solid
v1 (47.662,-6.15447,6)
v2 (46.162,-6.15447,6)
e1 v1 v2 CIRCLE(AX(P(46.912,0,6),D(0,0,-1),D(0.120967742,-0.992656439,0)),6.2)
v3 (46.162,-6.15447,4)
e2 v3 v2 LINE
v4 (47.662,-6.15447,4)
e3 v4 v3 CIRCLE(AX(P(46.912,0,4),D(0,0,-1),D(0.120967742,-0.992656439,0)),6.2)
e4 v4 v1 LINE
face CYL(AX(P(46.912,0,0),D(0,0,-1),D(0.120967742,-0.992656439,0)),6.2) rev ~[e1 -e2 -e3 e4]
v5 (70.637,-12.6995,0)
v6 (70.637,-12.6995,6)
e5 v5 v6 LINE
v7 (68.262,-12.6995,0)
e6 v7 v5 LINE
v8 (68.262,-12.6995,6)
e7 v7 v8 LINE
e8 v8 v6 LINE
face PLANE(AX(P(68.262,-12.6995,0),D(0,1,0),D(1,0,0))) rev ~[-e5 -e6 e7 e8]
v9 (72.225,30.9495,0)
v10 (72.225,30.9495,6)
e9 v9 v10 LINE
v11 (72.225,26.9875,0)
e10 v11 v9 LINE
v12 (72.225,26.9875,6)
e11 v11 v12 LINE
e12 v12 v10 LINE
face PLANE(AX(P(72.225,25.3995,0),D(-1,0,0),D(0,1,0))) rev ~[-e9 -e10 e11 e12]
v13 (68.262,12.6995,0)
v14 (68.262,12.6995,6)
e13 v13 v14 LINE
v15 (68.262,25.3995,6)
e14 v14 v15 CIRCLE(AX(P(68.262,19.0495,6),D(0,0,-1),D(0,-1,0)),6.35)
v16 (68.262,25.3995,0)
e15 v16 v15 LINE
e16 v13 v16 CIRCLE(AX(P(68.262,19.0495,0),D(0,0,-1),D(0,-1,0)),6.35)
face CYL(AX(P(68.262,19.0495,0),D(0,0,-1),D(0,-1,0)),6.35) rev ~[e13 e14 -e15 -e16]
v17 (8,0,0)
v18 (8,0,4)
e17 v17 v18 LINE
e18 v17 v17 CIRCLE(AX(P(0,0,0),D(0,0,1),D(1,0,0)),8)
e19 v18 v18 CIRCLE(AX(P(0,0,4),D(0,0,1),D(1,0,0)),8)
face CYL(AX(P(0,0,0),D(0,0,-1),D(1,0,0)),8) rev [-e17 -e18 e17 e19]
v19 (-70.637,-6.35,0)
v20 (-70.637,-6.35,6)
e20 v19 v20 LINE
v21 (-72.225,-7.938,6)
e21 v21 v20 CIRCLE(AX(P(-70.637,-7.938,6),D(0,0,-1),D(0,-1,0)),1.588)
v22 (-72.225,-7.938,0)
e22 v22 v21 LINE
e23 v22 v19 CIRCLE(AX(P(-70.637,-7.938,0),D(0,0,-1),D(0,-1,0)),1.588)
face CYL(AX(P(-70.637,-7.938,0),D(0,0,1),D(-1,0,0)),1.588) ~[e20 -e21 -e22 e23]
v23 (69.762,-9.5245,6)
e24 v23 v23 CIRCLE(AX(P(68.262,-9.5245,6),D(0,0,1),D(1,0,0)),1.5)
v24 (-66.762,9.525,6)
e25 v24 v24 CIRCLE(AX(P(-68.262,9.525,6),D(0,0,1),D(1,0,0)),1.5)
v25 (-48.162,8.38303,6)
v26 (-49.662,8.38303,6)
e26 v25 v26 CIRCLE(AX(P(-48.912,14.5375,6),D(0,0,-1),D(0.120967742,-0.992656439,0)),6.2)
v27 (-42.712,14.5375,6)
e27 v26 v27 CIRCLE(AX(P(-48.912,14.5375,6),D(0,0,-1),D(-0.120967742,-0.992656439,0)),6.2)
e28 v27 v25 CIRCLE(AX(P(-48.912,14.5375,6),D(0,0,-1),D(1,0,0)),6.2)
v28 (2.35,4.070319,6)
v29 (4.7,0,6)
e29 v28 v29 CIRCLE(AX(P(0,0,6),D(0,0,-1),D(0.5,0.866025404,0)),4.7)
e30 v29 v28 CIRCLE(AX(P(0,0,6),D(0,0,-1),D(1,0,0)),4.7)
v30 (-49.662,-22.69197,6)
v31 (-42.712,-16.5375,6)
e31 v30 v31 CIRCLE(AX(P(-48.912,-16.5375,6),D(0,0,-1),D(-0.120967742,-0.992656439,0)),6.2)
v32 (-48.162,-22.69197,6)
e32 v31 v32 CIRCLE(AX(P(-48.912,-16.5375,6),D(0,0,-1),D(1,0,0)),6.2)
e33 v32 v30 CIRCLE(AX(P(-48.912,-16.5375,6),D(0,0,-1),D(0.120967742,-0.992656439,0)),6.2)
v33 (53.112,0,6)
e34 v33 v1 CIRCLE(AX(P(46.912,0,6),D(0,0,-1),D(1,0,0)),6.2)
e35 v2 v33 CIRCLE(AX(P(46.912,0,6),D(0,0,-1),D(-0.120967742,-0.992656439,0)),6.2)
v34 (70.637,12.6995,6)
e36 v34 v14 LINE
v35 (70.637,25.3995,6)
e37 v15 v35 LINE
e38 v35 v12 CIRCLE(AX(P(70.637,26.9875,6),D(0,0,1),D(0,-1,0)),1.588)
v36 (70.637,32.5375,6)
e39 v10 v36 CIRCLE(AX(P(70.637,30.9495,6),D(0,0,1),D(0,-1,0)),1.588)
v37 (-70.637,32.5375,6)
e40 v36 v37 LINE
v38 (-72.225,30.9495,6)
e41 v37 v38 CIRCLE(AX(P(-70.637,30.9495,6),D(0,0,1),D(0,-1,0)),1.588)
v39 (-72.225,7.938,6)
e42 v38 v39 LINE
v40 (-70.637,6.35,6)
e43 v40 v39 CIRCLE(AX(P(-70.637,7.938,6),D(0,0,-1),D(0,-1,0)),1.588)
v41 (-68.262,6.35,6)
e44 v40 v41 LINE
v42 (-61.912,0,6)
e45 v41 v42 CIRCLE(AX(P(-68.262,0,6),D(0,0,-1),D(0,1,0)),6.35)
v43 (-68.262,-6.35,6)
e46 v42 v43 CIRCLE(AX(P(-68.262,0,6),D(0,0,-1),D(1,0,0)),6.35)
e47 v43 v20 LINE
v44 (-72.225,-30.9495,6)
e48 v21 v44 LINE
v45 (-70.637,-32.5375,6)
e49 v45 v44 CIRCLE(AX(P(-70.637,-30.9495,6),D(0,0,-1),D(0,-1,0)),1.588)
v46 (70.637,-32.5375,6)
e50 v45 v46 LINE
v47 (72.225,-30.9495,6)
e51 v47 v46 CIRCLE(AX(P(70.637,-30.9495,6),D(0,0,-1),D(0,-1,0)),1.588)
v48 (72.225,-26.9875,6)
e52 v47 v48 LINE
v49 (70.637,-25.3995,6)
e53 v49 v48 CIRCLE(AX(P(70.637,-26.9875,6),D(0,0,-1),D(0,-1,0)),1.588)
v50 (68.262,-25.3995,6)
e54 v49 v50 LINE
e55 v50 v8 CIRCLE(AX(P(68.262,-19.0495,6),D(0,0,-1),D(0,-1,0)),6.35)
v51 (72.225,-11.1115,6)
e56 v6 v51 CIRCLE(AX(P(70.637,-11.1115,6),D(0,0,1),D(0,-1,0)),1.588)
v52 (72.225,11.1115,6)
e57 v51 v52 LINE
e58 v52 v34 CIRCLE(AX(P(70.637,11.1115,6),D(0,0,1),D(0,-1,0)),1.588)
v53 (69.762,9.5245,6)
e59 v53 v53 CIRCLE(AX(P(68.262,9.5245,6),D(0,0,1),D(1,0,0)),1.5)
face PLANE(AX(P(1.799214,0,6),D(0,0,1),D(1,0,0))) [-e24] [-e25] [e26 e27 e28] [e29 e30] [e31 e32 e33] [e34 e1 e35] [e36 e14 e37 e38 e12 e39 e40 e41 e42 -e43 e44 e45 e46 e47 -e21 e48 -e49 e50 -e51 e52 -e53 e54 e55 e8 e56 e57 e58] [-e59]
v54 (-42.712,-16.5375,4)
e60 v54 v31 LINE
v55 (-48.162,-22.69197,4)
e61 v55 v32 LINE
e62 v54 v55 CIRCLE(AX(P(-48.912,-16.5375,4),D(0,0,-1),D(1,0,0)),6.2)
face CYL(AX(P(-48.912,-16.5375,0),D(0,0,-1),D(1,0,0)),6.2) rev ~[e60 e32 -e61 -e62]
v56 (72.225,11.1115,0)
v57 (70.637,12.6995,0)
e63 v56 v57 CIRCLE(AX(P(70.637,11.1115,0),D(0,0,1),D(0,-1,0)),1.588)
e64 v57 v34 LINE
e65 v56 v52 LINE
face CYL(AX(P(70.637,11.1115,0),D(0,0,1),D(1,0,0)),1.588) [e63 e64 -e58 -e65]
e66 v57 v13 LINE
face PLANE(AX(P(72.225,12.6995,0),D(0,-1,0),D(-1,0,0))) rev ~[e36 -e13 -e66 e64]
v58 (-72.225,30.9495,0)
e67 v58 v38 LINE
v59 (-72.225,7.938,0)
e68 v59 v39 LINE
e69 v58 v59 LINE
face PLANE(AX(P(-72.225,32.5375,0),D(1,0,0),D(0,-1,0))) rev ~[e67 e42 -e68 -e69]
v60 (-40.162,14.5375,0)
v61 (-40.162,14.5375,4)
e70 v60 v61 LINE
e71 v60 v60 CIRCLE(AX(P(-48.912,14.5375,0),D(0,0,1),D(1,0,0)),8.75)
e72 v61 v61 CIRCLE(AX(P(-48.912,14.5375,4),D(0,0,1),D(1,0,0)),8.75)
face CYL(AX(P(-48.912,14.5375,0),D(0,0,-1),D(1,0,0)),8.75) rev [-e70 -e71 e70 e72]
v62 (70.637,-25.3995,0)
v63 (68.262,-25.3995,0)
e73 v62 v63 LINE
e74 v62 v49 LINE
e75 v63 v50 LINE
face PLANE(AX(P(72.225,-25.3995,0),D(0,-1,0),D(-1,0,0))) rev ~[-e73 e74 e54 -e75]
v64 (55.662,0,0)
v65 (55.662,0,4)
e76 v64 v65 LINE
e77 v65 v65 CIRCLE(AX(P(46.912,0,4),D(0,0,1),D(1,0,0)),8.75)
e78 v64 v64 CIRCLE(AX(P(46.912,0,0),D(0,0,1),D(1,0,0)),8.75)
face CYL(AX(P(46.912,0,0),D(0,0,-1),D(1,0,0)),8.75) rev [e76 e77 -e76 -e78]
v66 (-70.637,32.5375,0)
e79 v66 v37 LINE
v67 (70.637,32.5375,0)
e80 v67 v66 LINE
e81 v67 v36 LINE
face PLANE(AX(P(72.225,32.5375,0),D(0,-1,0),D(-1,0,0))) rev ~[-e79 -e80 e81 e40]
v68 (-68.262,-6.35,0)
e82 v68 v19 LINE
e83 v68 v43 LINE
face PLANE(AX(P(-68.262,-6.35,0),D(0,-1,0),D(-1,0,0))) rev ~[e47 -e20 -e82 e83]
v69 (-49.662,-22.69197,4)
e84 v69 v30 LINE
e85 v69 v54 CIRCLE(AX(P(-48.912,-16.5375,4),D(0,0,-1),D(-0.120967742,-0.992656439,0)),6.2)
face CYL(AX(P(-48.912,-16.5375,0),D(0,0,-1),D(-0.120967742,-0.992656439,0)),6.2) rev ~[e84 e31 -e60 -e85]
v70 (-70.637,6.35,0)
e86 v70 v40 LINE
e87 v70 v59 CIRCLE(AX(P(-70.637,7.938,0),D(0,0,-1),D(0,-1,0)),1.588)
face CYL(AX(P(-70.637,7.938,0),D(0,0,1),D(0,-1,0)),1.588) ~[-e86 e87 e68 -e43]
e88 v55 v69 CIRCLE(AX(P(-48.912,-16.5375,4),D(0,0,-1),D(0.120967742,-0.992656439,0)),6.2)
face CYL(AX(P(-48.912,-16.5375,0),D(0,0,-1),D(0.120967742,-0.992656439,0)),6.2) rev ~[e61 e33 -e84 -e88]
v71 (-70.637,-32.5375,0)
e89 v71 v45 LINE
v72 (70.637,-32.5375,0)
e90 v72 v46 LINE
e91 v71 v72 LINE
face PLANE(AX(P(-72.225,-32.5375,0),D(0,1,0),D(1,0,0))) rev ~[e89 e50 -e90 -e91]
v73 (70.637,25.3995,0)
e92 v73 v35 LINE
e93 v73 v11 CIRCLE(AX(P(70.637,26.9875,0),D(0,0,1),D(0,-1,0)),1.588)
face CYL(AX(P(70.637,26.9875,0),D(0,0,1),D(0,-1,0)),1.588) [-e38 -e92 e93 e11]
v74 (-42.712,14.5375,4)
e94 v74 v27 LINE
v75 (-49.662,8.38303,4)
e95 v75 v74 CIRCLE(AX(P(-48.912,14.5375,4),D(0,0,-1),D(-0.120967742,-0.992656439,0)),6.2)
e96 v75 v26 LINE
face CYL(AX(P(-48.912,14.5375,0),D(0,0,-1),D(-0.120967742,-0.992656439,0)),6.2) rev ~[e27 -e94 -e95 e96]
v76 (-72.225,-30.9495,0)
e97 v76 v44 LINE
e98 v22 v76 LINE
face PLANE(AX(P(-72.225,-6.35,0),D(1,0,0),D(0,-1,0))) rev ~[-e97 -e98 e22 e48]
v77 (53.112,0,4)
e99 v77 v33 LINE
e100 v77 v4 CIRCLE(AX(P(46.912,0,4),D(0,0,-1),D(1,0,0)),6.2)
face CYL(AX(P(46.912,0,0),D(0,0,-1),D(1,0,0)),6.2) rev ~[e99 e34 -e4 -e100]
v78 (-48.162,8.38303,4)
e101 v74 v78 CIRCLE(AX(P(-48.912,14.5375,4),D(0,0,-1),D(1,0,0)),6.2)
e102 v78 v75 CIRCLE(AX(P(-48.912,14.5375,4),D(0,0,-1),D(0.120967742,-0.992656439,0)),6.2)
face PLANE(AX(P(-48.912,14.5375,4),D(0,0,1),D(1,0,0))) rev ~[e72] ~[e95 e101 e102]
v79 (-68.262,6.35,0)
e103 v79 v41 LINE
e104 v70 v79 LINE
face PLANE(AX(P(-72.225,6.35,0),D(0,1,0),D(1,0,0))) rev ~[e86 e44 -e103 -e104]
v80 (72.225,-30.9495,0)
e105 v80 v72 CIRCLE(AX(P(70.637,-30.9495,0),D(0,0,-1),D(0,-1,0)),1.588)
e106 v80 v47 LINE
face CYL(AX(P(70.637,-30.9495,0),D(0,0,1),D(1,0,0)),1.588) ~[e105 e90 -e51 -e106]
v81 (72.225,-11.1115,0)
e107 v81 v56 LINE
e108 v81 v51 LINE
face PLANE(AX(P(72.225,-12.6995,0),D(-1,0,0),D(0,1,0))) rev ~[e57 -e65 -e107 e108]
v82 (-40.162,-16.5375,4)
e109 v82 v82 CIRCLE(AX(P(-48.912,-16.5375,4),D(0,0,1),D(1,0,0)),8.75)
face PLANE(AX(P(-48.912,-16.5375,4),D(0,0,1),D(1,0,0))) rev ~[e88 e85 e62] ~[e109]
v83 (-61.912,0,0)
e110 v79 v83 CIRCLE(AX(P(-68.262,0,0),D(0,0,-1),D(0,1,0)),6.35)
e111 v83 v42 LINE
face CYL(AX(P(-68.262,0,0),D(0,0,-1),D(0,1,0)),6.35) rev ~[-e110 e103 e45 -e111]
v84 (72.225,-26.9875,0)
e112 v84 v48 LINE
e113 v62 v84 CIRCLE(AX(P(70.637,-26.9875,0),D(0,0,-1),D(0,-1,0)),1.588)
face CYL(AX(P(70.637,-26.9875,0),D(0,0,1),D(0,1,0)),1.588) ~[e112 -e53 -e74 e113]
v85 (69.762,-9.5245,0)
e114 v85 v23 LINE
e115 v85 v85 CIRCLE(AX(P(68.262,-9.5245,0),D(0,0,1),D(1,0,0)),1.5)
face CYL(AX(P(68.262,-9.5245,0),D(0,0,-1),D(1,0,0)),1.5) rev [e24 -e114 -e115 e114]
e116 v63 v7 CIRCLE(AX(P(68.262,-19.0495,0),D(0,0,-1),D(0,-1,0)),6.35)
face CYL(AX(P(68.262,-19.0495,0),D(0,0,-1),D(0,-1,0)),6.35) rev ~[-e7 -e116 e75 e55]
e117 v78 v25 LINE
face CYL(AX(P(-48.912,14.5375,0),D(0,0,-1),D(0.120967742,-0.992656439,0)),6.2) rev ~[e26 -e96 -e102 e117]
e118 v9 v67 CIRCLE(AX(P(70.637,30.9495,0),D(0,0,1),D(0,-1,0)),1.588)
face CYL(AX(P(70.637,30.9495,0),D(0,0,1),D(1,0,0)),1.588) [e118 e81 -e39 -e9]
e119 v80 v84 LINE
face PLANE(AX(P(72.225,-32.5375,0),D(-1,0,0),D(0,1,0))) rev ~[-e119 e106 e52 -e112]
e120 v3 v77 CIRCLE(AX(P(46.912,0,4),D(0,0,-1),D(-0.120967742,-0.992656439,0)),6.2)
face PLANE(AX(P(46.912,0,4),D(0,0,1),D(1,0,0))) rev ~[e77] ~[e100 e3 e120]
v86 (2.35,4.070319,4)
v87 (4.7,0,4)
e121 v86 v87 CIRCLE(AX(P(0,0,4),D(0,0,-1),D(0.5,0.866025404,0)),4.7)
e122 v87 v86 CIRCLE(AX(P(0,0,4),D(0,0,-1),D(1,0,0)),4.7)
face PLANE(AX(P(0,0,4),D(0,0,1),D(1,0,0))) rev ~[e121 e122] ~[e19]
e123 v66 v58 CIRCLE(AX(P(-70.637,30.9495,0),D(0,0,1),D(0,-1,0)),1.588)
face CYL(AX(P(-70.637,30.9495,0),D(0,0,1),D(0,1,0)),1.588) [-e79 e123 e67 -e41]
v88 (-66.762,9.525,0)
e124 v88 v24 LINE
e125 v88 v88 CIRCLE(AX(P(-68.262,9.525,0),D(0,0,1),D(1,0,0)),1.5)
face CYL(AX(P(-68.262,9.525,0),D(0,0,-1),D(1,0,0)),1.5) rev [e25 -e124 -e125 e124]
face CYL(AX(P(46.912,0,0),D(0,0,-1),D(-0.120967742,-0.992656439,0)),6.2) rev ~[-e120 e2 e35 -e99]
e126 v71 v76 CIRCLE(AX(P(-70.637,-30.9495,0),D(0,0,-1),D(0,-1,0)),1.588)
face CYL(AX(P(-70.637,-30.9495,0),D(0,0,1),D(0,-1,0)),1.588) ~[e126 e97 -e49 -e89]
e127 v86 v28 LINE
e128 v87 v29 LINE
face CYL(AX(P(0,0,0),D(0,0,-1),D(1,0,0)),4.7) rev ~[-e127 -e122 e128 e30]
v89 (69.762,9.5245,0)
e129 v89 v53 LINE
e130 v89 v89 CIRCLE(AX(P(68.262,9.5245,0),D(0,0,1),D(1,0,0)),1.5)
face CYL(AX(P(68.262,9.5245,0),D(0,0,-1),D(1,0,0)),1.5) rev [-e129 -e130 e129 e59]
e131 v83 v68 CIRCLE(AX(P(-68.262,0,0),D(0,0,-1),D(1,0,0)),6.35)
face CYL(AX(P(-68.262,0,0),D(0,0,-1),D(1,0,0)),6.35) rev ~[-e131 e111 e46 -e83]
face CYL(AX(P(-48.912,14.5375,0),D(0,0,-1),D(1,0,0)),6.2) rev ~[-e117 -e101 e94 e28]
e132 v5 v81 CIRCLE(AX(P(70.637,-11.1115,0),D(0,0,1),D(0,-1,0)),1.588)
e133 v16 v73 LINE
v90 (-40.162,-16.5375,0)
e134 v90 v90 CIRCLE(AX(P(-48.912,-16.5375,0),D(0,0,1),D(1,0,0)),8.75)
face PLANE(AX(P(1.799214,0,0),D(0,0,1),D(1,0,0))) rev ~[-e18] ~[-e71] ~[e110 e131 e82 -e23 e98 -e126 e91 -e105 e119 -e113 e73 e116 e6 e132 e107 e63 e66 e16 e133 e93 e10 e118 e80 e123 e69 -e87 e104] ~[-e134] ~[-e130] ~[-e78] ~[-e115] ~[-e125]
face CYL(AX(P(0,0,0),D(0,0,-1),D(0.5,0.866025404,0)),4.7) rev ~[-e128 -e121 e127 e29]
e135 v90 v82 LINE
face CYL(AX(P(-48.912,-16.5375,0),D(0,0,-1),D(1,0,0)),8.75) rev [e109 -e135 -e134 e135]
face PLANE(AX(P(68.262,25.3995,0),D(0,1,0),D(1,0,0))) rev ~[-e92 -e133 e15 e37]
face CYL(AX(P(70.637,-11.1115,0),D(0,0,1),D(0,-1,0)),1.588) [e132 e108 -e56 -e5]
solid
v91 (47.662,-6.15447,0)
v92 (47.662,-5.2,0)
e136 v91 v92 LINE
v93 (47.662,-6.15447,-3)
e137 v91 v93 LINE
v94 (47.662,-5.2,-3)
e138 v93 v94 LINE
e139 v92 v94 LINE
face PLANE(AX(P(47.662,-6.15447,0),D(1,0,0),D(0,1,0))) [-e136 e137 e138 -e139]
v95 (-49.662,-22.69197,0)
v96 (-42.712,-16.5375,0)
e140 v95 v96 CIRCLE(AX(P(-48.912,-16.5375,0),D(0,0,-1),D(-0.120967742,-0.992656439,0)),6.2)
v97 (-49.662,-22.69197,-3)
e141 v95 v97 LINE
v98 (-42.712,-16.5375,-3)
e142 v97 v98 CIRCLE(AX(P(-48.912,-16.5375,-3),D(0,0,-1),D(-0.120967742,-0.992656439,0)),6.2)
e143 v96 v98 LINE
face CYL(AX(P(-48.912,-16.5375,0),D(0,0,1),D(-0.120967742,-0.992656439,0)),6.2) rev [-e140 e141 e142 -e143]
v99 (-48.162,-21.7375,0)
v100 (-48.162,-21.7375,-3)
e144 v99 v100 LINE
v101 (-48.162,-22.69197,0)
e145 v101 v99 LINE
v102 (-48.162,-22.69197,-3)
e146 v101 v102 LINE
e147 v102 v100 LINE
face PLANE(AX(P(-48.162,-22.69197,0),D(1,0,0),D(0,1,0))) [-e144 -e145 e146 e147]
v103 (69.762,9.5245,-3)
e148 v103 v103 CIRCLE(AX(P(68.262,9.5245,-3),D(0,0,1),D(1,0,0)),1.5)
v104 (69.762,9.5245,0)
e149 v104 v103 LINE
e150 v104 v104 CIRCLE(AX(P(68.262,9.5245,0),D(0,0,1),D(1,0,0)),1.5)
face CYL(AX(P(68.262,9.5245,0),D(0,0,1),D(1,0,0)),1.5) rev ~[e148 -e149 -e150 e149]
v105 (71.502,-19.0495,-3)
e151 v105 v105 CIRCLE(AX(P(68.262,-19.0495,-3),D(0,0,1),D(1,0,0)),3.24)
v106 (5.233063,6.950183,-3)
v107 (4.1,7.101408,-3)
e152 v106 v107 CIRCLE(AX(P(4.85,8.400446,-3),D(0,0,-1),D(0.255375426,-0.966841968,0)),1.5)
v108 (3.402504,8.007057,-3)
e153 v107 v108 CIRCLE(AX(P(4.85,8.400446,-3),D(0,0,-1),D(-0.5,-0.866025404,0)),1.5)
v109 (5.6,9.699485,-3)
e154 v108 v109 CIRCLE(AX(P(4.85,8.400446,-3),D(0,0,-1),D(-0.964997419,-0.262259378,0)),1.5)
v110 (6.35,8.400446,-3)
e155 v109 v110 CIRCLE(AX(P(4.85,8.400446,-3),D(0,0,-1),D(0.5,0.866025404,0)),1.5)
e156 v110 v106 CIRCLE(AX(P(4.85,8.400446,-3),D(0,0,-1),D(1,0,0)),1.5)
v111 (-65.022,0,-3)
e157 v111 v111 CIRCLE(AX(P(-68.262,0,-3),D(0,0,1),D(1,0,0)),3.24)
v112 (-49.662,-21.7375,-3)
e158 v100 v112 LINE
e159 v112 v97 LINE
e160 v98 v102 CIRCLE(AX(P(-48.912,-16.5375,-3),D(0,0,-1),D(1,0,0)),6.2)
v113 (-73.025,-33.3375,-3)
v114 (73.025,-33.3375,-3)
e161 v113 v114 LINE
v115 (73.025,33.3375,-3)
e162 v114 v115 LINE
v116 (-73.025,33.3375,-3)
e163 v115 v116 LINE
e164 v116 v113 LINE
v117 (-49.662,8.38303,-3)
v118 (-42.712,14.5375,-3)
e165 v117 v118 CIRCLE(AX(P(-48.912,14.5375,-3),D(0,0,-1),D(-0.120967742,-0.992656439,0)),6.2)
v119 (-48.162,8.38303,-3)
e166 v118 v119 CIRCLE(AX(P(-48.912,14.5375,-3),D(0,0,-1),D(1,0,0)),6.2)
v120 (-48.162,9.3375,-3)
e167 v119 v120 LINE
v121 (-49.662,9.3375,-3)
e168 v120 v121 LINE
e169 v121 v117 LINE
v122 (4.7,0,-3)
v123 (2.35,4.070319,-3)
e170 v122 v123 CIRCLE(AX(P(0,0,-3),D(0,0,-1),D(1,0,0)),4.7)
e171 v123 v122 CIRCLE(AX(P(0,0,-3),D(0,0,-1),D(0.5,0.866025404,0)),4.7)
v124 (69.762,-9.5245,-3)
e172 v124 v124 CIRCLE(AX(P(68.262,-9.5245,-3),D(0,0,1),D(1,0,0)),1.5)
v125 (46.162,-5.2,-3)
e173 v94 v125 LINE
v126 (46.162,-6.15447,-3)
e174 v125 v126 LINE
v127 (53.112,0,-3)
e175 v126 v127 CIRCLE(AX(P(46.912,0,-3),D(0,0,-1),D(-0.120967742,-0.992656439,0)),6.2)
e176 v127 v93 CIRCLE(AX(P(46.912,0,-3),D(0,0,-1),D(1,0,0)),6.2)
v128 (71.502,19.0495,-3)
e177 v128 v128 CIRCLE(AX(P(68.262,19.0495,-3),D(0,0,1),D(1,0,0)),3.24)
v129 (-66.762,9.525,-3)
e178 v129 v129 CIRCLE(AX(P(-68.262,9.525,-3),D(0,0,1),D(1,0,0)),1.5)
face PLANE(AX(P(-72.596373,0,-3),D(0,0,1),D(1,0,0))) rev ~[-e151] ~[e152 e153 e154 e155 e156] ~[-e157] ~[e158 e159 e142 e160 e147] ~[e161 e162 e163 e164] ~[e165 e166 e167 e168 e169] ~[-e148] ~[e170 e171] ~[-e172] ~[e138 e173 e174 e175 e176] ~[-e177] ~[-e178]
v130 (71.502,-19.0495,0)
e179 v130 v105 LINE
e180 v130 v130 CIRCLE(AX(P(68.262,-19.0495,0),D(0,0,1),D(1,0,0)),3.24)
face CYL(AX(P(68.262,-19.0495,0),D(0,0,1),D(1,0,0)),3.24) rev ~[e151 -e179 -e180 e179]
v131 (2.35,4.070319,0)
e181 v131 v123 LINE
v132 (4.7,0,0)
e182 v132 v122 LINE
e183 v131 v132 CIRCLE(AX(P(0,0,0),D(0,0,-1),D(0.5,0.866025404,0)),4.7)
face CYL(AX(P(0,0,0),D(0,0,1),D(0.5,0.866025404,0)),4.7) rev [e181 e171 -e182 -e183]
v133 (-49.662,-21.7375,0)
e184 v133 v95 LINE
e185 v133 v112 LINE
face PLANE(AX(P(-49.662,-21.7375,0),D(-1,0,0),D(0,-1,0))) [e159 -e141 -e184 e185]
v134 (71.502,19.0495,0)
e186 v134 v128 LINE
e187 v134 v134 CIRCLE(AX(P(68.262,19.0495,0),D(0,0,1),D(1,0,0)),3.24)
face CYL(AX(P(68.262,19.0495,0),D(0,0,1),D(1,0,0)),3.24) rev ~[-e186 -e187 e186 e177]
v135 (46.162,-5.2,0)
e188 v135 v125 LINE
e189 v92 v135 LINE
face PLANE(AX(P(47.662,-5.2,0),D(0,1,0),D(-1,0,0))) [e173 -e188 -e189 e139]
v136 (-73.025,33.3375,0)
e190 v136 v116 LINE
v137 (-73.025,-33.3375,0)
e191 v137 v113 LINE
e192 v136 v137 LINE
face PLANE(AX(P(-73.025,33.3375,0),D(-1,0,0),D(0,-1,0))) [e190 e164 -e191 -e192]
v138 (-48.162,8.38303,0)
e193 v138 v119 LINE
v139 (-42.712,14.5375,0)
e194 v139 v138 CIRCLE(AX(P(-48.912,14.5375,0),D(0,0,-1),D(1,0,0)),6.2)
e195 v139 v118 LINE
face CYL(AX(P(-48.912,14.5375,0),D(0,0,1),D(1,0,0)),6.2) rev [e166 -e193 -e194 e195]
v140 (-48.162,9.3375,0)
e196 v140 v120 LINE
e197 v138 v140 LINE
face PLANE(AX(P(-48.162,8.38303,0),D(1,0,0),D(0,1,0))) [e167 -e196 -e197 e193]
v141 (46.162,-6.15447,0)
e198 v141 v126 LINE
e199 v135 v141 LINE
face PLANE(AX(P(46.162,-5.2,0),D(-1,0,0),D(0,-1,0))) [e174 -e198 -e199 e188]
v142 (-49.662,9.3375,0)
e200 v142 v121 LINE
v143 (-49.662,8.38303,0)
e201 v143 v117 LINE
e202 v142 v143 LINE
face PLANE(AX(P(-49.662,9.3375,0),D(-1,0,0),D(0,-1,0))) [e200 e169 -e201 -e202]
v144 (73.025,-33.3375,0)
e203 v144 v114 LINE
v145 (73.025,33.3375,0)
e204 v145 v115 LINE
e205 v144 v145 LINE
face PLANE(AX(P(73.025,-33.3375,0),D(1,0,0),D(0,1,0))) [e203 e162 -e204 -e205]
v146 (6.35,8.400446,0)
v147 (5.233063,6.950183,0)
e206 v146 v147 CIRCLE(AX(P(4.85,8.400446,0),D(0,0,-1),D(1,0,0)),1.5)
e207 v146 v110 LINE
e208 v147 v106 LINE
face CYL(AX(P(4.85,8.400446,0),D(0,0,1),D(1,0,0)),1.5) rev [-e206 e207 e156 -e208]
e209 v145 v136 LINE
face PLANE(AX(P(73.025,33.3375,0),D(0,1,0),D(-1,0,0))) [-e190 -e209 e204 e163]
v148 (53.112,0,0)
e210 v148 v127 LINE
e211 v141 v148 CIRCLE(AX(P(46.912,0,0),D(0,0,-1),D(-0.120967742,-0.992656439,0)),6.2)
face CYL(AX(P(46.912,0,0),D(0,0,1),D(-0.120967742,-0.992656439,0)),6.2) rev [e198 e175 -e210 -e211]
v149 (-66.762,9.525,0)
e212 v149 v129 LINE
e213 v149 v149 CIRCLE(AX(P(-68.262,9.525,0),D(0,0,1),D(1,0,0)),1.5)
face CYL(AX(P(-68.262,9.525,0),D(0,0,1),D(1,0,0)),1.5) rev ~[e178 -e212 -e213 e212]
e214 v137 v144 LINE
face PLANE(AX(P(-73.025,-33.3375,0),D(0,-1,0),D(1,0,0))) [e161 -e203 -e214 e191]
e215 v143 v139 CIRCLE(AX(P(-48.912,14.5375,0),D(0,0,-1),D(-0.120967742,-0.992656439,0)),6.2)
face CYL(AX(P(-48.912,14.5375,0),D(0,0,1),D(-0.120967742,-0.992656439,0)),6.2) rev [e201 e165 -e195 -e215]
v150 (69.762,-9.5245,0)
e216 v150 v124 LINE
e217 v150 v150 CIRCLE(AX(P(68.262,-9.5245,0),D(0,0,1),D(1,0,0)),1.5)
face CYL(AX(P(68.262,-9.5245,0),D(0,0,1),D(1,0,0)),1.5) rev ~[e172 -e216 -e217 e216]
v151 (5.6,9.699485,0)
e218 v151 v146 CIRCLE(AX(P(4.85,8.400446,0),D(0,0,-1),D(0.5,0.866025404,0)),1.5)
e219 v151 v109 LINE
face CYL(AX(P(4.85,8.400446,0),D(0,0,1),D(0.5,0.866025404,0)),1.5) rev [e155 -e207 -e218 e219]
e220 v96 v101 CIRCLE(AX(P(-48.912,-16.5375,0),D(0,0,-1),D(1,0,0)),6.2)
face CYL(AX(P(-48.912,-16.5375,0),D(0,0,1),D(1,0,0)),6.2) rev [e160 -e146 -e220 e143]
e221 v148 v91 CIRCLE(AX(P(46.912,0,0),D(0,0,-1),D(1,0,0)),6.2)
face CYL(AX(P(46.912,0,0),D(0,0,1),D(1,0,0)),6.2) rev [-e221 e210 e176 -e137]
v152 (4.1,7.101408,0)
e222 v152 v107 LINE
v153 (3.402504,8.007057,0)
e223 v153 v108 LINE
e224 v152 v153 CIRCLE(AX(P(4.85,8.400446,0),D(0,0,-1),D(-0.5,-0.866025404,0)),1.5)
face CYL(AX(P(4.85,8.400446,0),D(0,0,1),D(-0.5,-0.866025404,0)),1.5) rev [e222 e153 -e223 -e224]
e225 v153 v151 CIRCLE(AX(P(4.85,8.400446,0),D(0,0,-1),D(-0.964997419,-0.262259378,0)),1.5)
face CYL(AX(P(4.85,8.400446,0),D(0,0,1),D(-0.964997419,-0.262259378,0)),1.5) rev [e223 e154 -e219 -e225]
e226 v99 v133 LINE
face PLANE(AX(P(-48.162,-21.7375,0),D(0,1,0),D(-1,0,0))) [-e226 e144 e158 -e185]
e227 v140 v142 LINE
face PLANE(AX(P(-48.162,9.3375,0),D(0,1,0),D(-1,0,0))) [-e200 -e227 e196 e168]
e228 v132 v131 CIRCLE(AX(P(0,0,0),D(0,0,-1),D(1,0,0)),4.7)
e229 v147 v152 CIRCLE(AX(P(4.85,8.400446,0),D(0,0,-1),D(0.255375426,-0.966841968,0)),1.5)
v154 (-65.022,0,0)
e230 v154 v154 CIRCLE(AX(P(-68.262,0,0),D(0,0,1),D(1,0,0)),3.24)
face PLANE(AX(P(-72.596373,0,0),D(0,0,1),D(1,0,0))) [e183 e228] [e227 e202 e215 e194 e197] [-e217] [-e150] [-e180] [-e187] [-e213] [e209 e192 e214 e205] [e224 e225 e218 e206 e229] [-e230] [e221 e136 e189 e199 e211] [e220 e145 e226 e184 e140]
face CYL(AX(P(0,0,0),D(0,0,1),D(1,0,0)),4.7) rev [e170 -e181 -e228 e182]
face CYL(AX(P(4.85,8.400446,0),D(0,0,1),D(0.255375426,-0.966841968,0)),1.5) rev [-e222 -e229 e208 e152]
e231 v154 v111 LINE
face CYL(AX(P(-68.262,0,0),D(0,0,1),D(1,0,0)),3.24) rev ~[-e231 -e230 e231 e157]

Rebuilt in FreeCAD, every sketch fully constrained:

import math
import FreeCAD as App
import Part
import Sketcher
from FreeCAD import Vector
Q = App.Units.Quantity


def edges_at(feature, points):
    """Names of the edges that pass closest to the given points."""
    edges = feature.Shape.Edges
    near = lambda p: min(range(len(edges)), key=lambda i: edges[i].distToShape(Part.Vertex(*p))[0])
    return sorted({f"Edge{near(p) + 1}" for p in points})


def add_polygon(sketch, points):
    """Adds a closed chain of lines whose ends are joined by coincident constraints."""
    first, n = sketch.GeometryCount, len(points)
    for a, b in zip(points, points[1:] + points[:1]):
        sketch.addGeometry(Part.LineSegment(App.Vector(*a, 0), App.Vector(*b, 0)), False)
    for i in range(n):
        sketch.addConstraint(Sketcher.Constraint("Coincident", first + i, 2, first + (i + 1) % n, 1))

doc = App.newDocument("Part")
body = doc.addObject("PartDesign::Body", "Body")

sketch1 = body.newObject("Sketcher::SketchObject", "Sketch")
sketch1.AttachmentSupport = (doc.getObject("XY_Plane"), [""])
sketch1.MapMode = "FlatFace"
add_polygon(sketch1, [(-73, -33.3), (73, -33.3), (73, 33.3), (-73, 33.3)])
sketch1.addGeometry(Part.ArcOfCircle(Part.Circle(Vector(-48.9, -16.5, 0), Vector(0, 0, 1), 6.2), math.radians(0), math.radians(263)), False)
sketch1.addGeometry(Part.ArcOfCircle(Part.Circle(Vector(-48.9, -16.5, 0), Vector(0, 0, 1), 6.2), math.radians(-83), math.radians(0)), False)
sketch1.addGeometry(Part.LineSegment(Vector(-48.2, -22.7, 0), Vector(-48.2, -21.7, 0)), False)
sketch1.addGeometry(Part.LineSegment(Vector(-48.2, -21.7, 0), Vector(-49.7, -21.7, 0)), False)
sketch1.addGeometry(Part.LineSegment(Vector(-49.7, -21.7, 0), Vector(-49.7, -22.7, 0)), False)
sketch1.addGeometry(Part.Circle(Vector(68.3, -19, 0), Vector(0, 0, 1), 3.2), False)
sketch1.addGeometry(Part.Circle(Vector(68.3, -9.5, 0), Vector(0, 0, 1), 1.5), False)
sketch1.addGeometry(Part.ArcOfCircle(Part.Circle(Vector(46.9, 0, 0), Vector(0, 0, 1), 6.2), math.radians(0), math.radians(263)), False)
sketch1.addGeometry(Part.ArcOfCircle(Part.Circle(Vector(46.9, 0, 0), Vector(0, 0, 1), 6.2), math.radians(-83), math.radians(0)), False)
sketch1.addGeometry(Part.LineSegment(Vector(47.7, -6.2, 0), Vector(47.7, -5.2, 0)), False)
sketch1.addGeometry(Part.LineSegment(Vector(47.7, -5.2, 0), Vector(46.2, -5.2, 0)), False)
sketch1.addGeometry(Part.LineSegment(Vector(46.2, -5.2, 0), Vector(46.2, -6.2, 0)), False)
sketch1.addGeometry(Part.Circle(Vector(-68.3, 0, 0), Vector(0, 0, 1), 3.2), False)
sketch1.addGeometry(Part.Circle(Vector(-68.3, 9.5, 0), Vector(0, 0, 1), 1.5), False)
sketch1.addGeometry(Part.ArcOfCircle(Part.Circle(Vector(0, 0, 0), Vector(0, 0, 1), 4.7), math.radians(60), math.radians(360)), False)
sketch1.addGeometry(Part.ArcOfCircle(Part.Circle(Vector(0, 0, 0), Vector(0, 0, 1), 4.7), math.radians(0), math.radians(60)), False)
sketch1.addGeometry(Part.ArcOfCircle(Part.Circle(Vector(-48.9, 14.5, 0), Vector(0, 0, 1), 6.2), math.radians(0), math.radians(263)), False)
sketch1.addGeometry(Part.ArcOfCircle(Part.Circle(Vector(-48.9, 14.5, 0), Vector(0, 0, 1), 6.2), math.radians(-83), math.radians(0)), False)
sketch1.addGeometry(Part.LineSegment(Vector(-48.2, 8.4, 0), Vector(-48.2, 9.3, 0)), False)
sketch1.addGeometry(Part.LineSegment(Vector(-48.2, 9.3, 0), Vector(-49.7, 9.3, 0)), False)
sketch1.addGeometry(Part.LineSegment(Vector(-49.7, 9.3, 0), Vector(-49.7, 8.4, 0)), False)
sketch1.addGeometry(Part.ArcOfCircle(Part.Circle(Vector(4.8, 8.4, 0), Vector(0, 0, 1), 1.5), math.radians(60), math.radians(195)), False)
sketch1.addGeometry(Part.ArcOfCircle(Part.Circle(Vector(4.8, 8.4, 0), Vector(0, 0, 1), 1.5), math.radians(0), math.radians(60)), False)
sketch1.addGeometry(Part.ArcOfCircle(Part.Circle(Vector(4.8, 8.4, 0), Vector(0, 0, 1), 1.5), math.radians(-75), math.radians(0)), False)
sketch1.addGeometry(Part.ArcOfCircle(Part.Circle(Vector(4.8, 8.4, 0), Vector(0, 0, 1), 1.5), math.radians(-120), math.radians(-75)), False)
sketch1.addGeometry(Part.ArcOfCircle(Part.Circle(Vector(4.8, 8.4, 0), Vector(0, 0, 1), 1.5), math.radians(-165), math.radians(-120)), False)
sketch1.addGeometry(Part.Circle(Vector(68.3, 9.5, 0), Vector(0, 0, 1), 1.5), False)
sketch1.addGeometry(Part.Circle(Vector(68.3, 19, 0), Vector(0, 0, 1), 3.2), False)
sketch1.addConstraint([
    Sketcher.Constraint("Tangent", 4, 1, 5, 2),
    Sketcher.Constraint("Coincident", 5, 1, 6, 1),
    Sketcher.Constraint("Coincident", 6, 2, 7, 1),
    Sketcher.Constraint("Coincident", 7, 2, 8, 1),
    Sketcher.Constraint("Coincident", 8, 2, 4, 2),
    Sketcher.Constraint("Tangent", 11, 1, 12, 2),
    Sketcher.Constraint("Coincident", 12, 1, 13, 1),
    Sketcher.Constraint("Coincident", 13, 2, 14, 1),
    Sketcher.Constraint("Coincident", 14, 2, 15, 1),
    Sketcher.Constraint("Coincident", 15, 2, 11, 2),
    Sketcher.Constraint("Tangent", 18, 1, 19, 2),
    Sketcher.Constraint("Coincident", 19, 1, 18, 2),
    Sketcher.Constraint("Tangent", 20, 1, 21, 2),
    Sketcher.Constraint("Coincident", 21, 1, 22, 1),
    Sketcher.Constraint("Coincident", 22, 2, 23, 1),
    Sketcher.Constraint("Coincident", 23, 2, 24, 1),
    Sketcher.Constraint("Coincident", 24, 2, 20, 2),
    Sketcher.Constraint("Tangent", 25, 1, 26, 2),
    Sketcher.Constraint("Tangent", 26, 1, 27, 2),
    Sketcher.Constraint("Tangent", 27, 1, 28, 2),
    Sketcher.Constraint("Tangent", 28, 1, 29, 2),
    Sketcher.Constraint("Tangent", 29, 1, 25, 2),
    Sketcher.Constraint("Horizontal", 0),
    Sketcher.Constraint("Vertical", 1),
    Sketcher.Constraint("Horizontal", 2),
    Sketcher.Constraint("Vertical", 3),
    Sketcher.Constraint("Vertical", 6),
    Sketcher.Constraint("Horizontal", 7),
    Sketcher.Constraint("Vertical", 8),
    Sketcher.Constraint("Vertical", 13),
    Sketcher.Constraint("Horizontal", 14),
    Sketcher.Constraint("Vertical", 15),
    Sketcher.Constraint("Vertical", 22),
    Sketcher.Constraint("Horizontal", 23),
    Sketcher.Constraint("Vertical", 24),
    Sketcher.Constraint("Coincident", 18, 3, -1, 1),
    Sketcher.Constraint("Coincident", 27, 3, 25, 3),
    Sketcher.Constraint("Equal", 4, 5),
    Sketcher.Constraint("Equal", 5, 11),
    Sketcher.Constraint("Equal", 11, 12),
    Sketcher.Constraint("Equal", 9, 16),
    Sketcher.Constraint("Equal", 10, 17),
    Sketcher.Constraint("Equal", 12, 20),
    Sketcher.Constraint("Equal", 20, 21),
    Sketcher.Constraint("Equal", 17, 25),
    Sketcher.Constraint("Equal", 29, 30),
    Sketcher.Constraint("Equal", 16, 31),
    Sketcher.Constraint("Symmetric", 0, 2, 2, 2, -1, 1),
    Sketcher.Constraint("Symmetric", 10, 3, 30, 3, -1),
    Sketcher.Constraint("Symmetric", 9, 3, 31, 3, -1),
    Sketcher.Constraint("PointOnObject", 11, 3, -1),
    Sketcher.Constraint("PointOnObject", 16, 3, -1),
    Sketcher.Constraint("PointOnObject", 11, 1, -1),
    Sketcher.Constraint("PointOnObject", 19, 1, -1),
    Sketcher.Constraint("Horizontal", 5, 3, 4, 1),
    Sketcher.Constraint("Horizontal", 5, 1, 8, 2),
    Sketcher.Constraint("Horizontal", 12, 1, 15, 2),
    Sketcher.Constraint("Horizontal", 21, 3, 20, 1),
    Sketcher.Constraint("Horizontal", 21, 1, 24, 2),
    Sketcher.Constraint("Horizontal", 29, 3, 26, 1),
    Sketcher.Constraint("Vertical", 9, 3, 10, 3),
    Sketcher.Constraint("Vertical", 16, 3, 17, 3),
    Sketcher.Constraint("Vertical", 5, 3, 20, 3),
    Sketcher.Constraint("Vertical", 6, 2, 21, 1),
    Sketcher.Constraint("Equal", 7, 14),
    Sketcher.Constraint("Equal", 8, 13),
    Sketcher.Constraint("Equal", 15, 22),
    Sketcher.Constraint("Diameter", 10, Q("3 mm")),
    Sketcher.Constraint("Radius", 4, Q("6.2 mm")),
    Sketcher.Constraint("Radius", 18, Q("4.7 mm")),
    Sketcher.Constraint("Diameter", 9, Q("6.48 mm")),
    Sketcher.Constraint("DistanceX", 7, 2, 7, 1, Q("1.5 mm")),
    Sketcher.Constraint("DistanceX", 0, 1, 0, 2, Q("146.05 mm")),
    Sketcher.Constraint("DistanceY", 13, 2, -1, 1, Q("5.2 mm")),
    Sketcher.Constraint("DistanceX", -1, 1, 25, 1, Q("5.6 mm")),
    Sketcher.Constraint("DistanceX", -1, 1, 28, 1, Q("4.1 mm")),
    Sketcher.Constraint("DistanceY", 20, 3, 2, 2, Q("18.8 mm")),
    Sketcher.Constraint("DistanceY", 3, 2, 4, 3, Q("16.8 mm")),
    Sketcher.Constraint("DistanceX", 16, 3, 5, 1, Q("20.1 mm")),
    Sketcher.Constraint("DistanceX", 12, 1, 10, 3, Q("20.6 mm")),
    Sketcher.Constraint("DistanceX", 18, 1, 28, 3, Q("2.5 mm")),
    Sketcher.Constraint("DistanceY", 1, 1, 1, 2, Q("66.675 mm")),
    Sketcher.Constraint("DistanceX", -1, 1, 25, 3, Q("4.85 mm")),
    Sketcher.Constraint("DistanceX", 4, 3, -1, 1, Q("48.912 mm")),
    Sketcher.Constraint("DistanceX", -1, 1, 9, 3, Q("68.262 mm")),
    Sketcher.Constraint("DistanceY", -1, 1, 17, 3, Q("9.525 mm")),
    Sketcher.Constraint("DistanceY", 9, 3, 4, 3, Q("2.512 mm")),
    Sketcher.Constraint("DistanceY", 9, 3, 10, 3, Q("9.525 mm")),
    Sketcher.Constraint("DistanceY", -1, 1, 28, 1, Q("7.101408 mm")),
    Sketcher.Constraint("DistanceY", 28, 1, 29, 1, Q("0.905649 mm")),
    Sketcher.Constraint("DistanceX", -1, 1, 27, 1, Q("5.233063 mm")),
])
pad1 = body.newObject("PartDesign::Pad", "Pad")
pad1.Profile = sketch1
pad1.Length = 3
pad1.Reversed = True
body2 = doc.addObject("PartDesign::Body", "Body001")

sketch2 = body2.newObject("Sketcher::SketchObject", "Sketch001")
sketch2.AttachmentSupport = (doc.getObject("XY_Plane001"), [""])
sketch2.MapMode = "FlatFace"
sketch2.addGeometry([
    Part.ArcOfCircle(Part.Circle(Vector(68.3, -19, 0), Vector(0, 0, 1), 6.3), math.radians(90), math.radians(270)),
    Part.LineSegment(Vector(68.3, -12.7, 0), Vector(72.2, -12.7, 0)),
    Part.LineSegment(Vector(72.2, -12.7, 0), Vector(72.2, 12.7, 0)),
    Part.LineSegment(Vector(72.2, 12.7, 0), Vector(68.3, 12.7, 0)),
    Part.ArcOfCircle(Part.Circle(Vector(68.3, 19, 0), Vector(0, 0, 1), 6.3), math.radians(90), math.radians(270)),
    Part.LineSegment(Vector(68.3, 25.4, 0), Vector(72.2, 25.4, 0)),
    Part.LineSegment(Vector(72.2, 25.4, 0), Vector(72.2, 32.5, 0)),
    Part.LineSegment(Vector(72.2, 32.5, 0), Vector(-72.2, 32.5, 0)),
    Part.LineSegment(Vector(-72.2, 32.5, 0), Vector(-72.2, 6.3, 0)),
    Part.LineSegment(Vector(-72.2, 6.3, 0), Vector(-68.3, 6.3, 0)),
    Part.ArcOfCircle(Part.Circle(Vector(-68.3, 0, 0), Vector(0, 0, 1), 6.3), math.radians(0), math.radians(90)),
    Part.ArcOfCircle(Part.Circle(Vector(-68.3, 0, 0), Vector(0, 0, 1), 6.3), math.radians(-90), math.radians(0)),
    Part.LineSegment(Vector(-68.3, -6.3, 0), Vector(-72.2, -6.3, 0)),
    Part.LineSegment(Vector(-72.2, -6.3, 0), Vector(-72.2, -32.5, 0)),
    Part.LineSegment(Vector(-72.2, -32.5, 0), Vector(72.2, -32.5, 0)),
    Part.LineSegment(Vector(72.2, -32.5, 0), Vector(72.2, -25.4, 0)),
    Part.LineSegment(Vector(72.2, -25.4, 0), Vector(68.3, -25.4, 0)),
    Part.ArcOfCircle(Part.Circle(Vector(-48.9, -16.5, 0), Vector(0, 0, 1), 6.2), math.radians(0), math.radians(263)),
    Part.ArcOfCircle(Part.Circle(Vector(-48.9, -16.5, 0), Vector(0, 0, 1), 6.2), math.radians(-83), math.radians(0)),
    Part.ArcOfCircle(Part.Circle(Vector(-48.9, -16.5, 0), Vector(0, 0, 1), 6.2), math.radians(-96.95), math.radians(-83.05)),
    Part.Circle(Vector(68.3, -9.5, 0), Vector(0, 0, 1), 1.5),
    Part.Circle(Vector(-68.3, 9.5, 0), Vector(0, 0, 1), 1.5),
    Part.ArcOfCircle(Part.Circle(Vector(0, 0, 0), Vector(0, 0, 1), 4.7), math.radians(60), math.radians(360)),
    Part.ArcOfCircle(Part.Circle(Vector(0, 0, 0), Vector(0, 0, 1), 4.7), math.radians(0), math.radians(60)),
    Part.ArcOfCircle(Part.Circle(Vector(-48.9, 14.5, 0), Vector(0, 0, 1), 6.2), math.radians(0), math.radians(263)),
    Part.ArcOfCircle(Part.Circle(Vector(-48.9, 14.5, 0), Vector(0, 0, 1), 6.2), math.radians(-83), math.radians(0)),
    Part.ArcOfCircle(Part.Circle(Vector(-48.9, 14.5, 0), Vector(0, 0, 1), 6.2), math.radians(-96.95), math.radians(-83.05)),
    Part.ArcOfCircle(Part.Circle(Vector(46.9, 0, 0), Vector(0, 0, 1), 6.2), math.radians(0), math.radians(263)),
    Part.ArcOfCircle(Part.Circle(Vector(46.9, 0, 0), Vector(0, 0, 1), 6.2), math.radians(-83), math.radians(0)),
    Part.ArcOfCircle(Part.Circle(Vector(46.9, 0, 0), Vector(0, 0, 1), 6.2), math.radians(-96.95), math.radians(-83.05)),
    Part.Circle(Vector(68.3, 9.5, 0), Vector(0, 0, 1), 1.5),
], False)
sketch2.addConstraint([
    Sketcher.Constraint("Tangent", 0, 1, 1, 1),
    Sketcher.Constraint("Coincident", 1, 2, 2, 1),
    Sketcher.Constraint("Coincident", 2, 2, 3, 1),
    Sketcher.Constraint("Tangent", 3, 2, 4, 2),
    Sketcher.Constraint("Tangent", 4, 1, 5, 1),
    Sketcher.Constraint("Coincident", 5, 2, 6, 1),
    Sketcher.Constraint("Coincident", 6, 2, 7, 1),
    Sketcher.Constraint("Coincident", 7, 2, 8, 1),
    Sketcher.Constraint("Coincident", 8, 2, 9, 1),
    Sketcher.Constraint("Tangent", 9, 2, 10, 2),
    Sketcher.Constraint("Tangent", 10, 1, 11, 2),
    Sketcher.Constraint("Tangent", 11, 1, 12, 1),
    Sketcher.Constraint("Coincident", 12, 2, 13, 1),
    Sketcher.Constraint("Coincident", 13, 2, 14, 1),
    Sketcher.Constraint("Coincident", 14, 2, 15, 1),
    Sketcher.Constraint("Coincident", 15, 2, 16, 1),
    Sketcher.Constraint("Tangent", 16, 2, 0, 2),
    Sketcher.Constraint("Tangent", 17, 1, 18, 2),
    Sketcher.Constraint("Tangent", 18, 1, 19, 2),
    Sketcher.Constraint("Tangent", 19, 1, 17, 2),
    Sketcher.Constraint("Tangent", 22, 1, 23, 2),
    Sketcher.Constraint("Coincident", 23, 1, 22, 2),
    Sketcher.Constraint("Tangent", 24, 1, 25, 2),
    Sketcher.Constraint("Tangent", 25, 1, 26, 2),
    Sketcher.Constraint("Tangent", 26, 1, 24, 2),
    Sketcher.Constraint("Tangent", 27, 1, 28, 2),
    Sketcher.Constraint("Tangent", 28, 1, 29, 2),
    Sketcher.Constraint("Tangent", 29, 1, 27, 2),
    Sketcher.Constraint("Horizontal", 1),
    Sketcher.Constraint("Vertical", 2),
    Sketcher.Constraint("Horizontal", 3),
    Sketcher.Constraint("Horizontal", 5),
    Sketcher.Constraint("Vertical", 6),
    Sketcher.Constraint("Horizontal", 7),
    Sketcher.Constraint("Vertical", 8),
    Sketcher.Constraint("Horizontal", 9),
    Sketcher.Constraint("Horizontal", 12),
    Sketcher.Constraint("Vertical", 13),
    Sketcher.Constraint("Horizontal", 14),
    Sketcher.Constraint("Vertical", 15),
    Sketcher.Constraint("Horizontal", 16),
    Sketcher.Constraint("Coincident", 22, 3, -1, 1),
    Sketcher.Constraint("Equal", 0, 4),
    Sketcher.Constraint("Equal", 4, 10),
    Sketcher.Constraint("Equal", 10, 11),
    Sketcher.Constraint("Equal", 20, 21),
    Sketcher.Constraint("Equal", 19, 24),
    Sketcher.Constraint("Equal", 26, 27),
    Sketcher.Constraint("Equal", 21, 30),
    Sketcher.Constraint("Symmetric", 6, 2, 13, 2, -1, 1),
    Sketcher.Constraint("Symmetric", 0, 3, 4, 3, -1),
    Sketcher.Constraint("Symmetric", 20, 3, 30, 3, -1),
    Sketcher.Constraint("Symmetric", 8, 2, 12, 2, -1),
    Sketcher.Constraint("PointOnObject", 27, 3, -1),
    Sketcher.Constraint("PointOnObject", 10, 1, -1),
    Sketcher.Constraint("PointOnObject", 23, 1, -1),
    Sketcher.Constraint("PointOnObject", 27, 1, -1),
    Sketcher.Constraint("Horizontal", 19, 3, 17, 1),
    Sketcher.Constraint("Horizontal", 18, 1, 19, 1),
    Sketcher.Constraint("Horizontal", 26, 3, 24, 1),
    Sketcher.Constraint("Horizontal", 25, 1, 26, 1),
    Sketcher.Constraint("Horizontal", 28, 1, 29, 1),
    Sketcher.Constraint("Vertical", 4, 3, 20, 3),
    Sketcher.Constraint("Vertical", 11, 3, 21, 3),
    Sketcher.Constraint("Vertical", 19, 3, 24, 3),
    Sketcher.Constraint("Vertical", 2, 2, 5, 2),
    Sketcher.Constraint("Vertical", 6, 2, 14, 2),
    Sketcher.Constraint("Vertical", 18, 1, 25, 1),
    Sketcher.Constraint("Equal", 5, 9),
    Sketcher.Constraint("Diameter", 20, Q("3 mm")),
    Sketcher.Constraint("Radius", 17, Q("6.2 mm")),
    Sketcher.Constraint("Radius", 22, Q("4.7 mm")),
    Sketcher.Constraint("Radius", 0, Q("6.35 mm")),
    Sketcher.Constraint("DistanceY", 24, 3, 7, 2, Q("18 mm")),
    Sketcher.Constraint("DistanceY", 13, 2, 19, 3, Q("16 mm")),
    Sketcher.Constraint("DistanceX", 7, 2, 7, 1, Q("144.45 mm")),
    Sketcher.Constraint("DistanceX", 10, 1, 17, 1, Q("19.2 mm")),
    Sketcher.Constraint("DistanceX", 11, 1, 18, 1, Q("20.1 mm")),
    Sketcher.Constraint("DistanceX", 28, 1, 20, 3, Q("20.6 mm")),
    Sketcher.Constraint("DistanceX", 29, 1, 28, 1, Q("1.5 mm")),
    Sketcher.Constraint("DistanceX", 1, 1, 1, 2, Q("3.963 mm")),
    Sketcher.Constraint("DistanceY", 2, 1, 2, 2, Q("25.399 mm")),
    Sketcher.Constraint("DistanceY", 6, 1, 6, 2, Q("7.138 mm")),
    Sketcher.Constraint("DistanceX", -1, 1, 22, 1, Q("2.35 mm")),
    Sketcher.Constraint("DistanceY", -1, 1, 21, 3, Q("9.525 mm")),
    Sketcher.Constraint("DistanceY", 0, 3, 20, 3, Q("9.525 mm")),
])
pad2 = body2.newObject("PartDesign::Pad", "Pad001")
pad2.Profile = sketch2
pad2.Length = 6

sketch3 = body2.newObject("Sketcher::SketchObject", "Sketch002")
sketch3.AttachmentSupport = (doc.getObject("XY_Plane001"), [""])
sketch3.MapMode = "FlatFace"
sketch3.addGeometry([
    Part.Circle(Vector(-49, 15, 0), Vector(0, 0, 1), 9),
    Part.Circle(Vector(-49, -17, 0), Vector(0, 0, 1), 9),
    Part.Circle(Vector(0, 0, 0), Vector(0, 0, 1), 8),
    Part.Circle(Vector(47, 0, 0), Vector(0, 0, 1), 9),
], False)
sketch3.addConstraint([
    Sketcher.Constraint("Coincident", 2, 3, -1, 1),
    Sketcher.Constraint("Equal", 0, 1),
    Sketcher.Constraint("Equal", 1, 3),
    Sketcher.Constraint("PointOnObject", 3, 3, -1),
    Sketcher.Constraint("Vertical", 0, 3, 1, 3),
    Sketcher.Constraint("Diameter", 2, Q("16 mm")),
    Sketcher.Constraint("Diameter", 0, Q("17.5 mm")),
    Sketcher.Constraint("DistanceX", 0, 3, -1, 1, Q("48.912 mm")),
    Sketcher.Constraint("DistanceX", -1, 1, 3, 3, Q("46.912 mm")),
    Sketcher.Constraint("DistanceY", 1, 3, 0, 3, Q("31.075 mm")),
    Sketcher.Constraint("DistanceY", -1, 1, 0, 3, Q("14.5375 mm")),
])
pocket1 = body2.newObject("PartDesign::Pocket", "Pocket")
pocket1.Profile = sketch3
pocket1.Length = 4
pocket1.Reversed = True
doc.recompute()

fillet = body2.newObject("PartDesign::Fillet", "Fillet")
fillet.Base = (pocket1, edges_at(pocket1, [
    (-72.225, -32.538, 3),
    (-72.225, -6.35, 3),
    (-72.225, 6.35, 3),
    (-72.225, 32.538, 3),
    (72.225, -32.538, 3),
    (72.225, -25.399, 3),
    (72.225, -12.7, 3),
    (72.225, 12.7, 3),
    (72.225, 25.399, 3),
    (72.225, 32.538, 3),
]))
fillet.Radius = 1.588

doc.recompute()
